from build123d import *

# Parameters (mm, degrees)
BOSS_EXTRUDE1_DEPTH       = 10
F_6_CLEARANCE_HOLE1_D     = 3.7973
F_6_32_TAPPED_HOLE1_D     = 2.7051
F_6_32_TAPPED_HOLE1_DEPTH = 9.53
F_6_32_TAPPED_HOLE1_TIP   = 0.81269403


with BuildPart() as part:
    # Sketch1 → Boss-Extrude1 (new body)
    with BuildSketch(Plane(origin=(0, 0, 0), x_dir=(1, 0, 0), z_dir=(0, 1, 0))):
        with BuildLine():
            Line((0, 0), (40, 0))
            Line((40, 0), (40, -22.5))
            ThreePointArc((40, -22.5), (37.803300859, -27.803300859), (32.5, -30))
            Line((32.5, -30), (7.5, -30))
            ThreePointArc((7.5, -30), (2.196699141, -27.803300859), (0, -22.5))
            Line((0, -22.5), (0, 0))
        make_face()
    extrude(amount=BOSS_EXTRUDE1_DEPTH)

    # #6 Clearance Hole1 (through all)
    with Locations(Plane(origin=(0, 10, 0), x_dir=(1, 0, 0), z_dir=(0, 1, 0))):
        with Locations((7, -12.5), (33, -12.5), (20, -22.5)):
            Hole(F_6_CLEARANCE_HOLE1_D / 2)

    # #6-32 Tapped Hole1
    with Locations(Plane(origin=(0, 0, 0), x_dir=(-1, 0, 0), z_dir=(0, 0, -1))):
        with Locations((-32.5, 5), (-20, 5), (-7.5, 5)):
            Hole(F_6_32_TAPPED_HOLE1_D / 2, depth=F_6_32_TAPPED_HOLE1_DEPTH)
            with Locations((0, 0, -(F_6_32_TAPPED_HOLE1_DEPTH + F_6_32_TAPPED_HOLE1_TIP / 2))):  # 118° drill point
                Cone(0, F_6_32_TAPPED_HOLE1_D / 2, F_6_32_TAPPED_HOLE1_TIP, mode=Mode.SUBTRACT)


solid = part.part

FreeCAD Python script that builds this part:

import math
import FreeCAD as App
import Part
import Sketcher
from FreeCAD import Vector
Q = App.Units.Quantity

doc = App.newDocument("Part")
body = doc.addObject("PartDesign::Body", "Body")

# Sketch on XZ plane
sketch1 = doc.addObject("Sketcher::SketchObject", "Sketch")
body.addObject(sketch1)
sketch1.AttachmentSupport = (doc.XZ_Plane, [""])
sketch1.MapMode = "FlatFace"
sketch1.addGeometry([
    Part.LineSegment(Vector(40, 0, 0), Vector(0, 0, 0)),  # 0
    Part.LineSegment(Vector(0, 0, 0), Vector(0, 22, 0)),  # 1
    Part.ArcOfCircle(Part.Circle(Vector(8, 22, 0), Vector(0, 0, 1), 8), math.radians(90), math.radians(180)),  # 2
    Part.LineSegment(Vector(8, 30, 0), Vector(32, 30, 0)),  # 3
    Part.ArcOfCircle(Part.Circle(Vector(32, 22, 0), Vector(0, 0, 1), 8), math.radians(0), math.radians(90)),  # 4
    Part.LineSegment(Vector(40, 22, 0), Vector(40, 0, 0)),  # 5
], False)
sketch1.addConstraint([
    Sketcher.Constraint("Coincident", 0, 2, 1, 1),
    Sketcher.Constraint("Tangent", 1, 2, 2, 2),
    Sketcher.Constraint("Tangent", 2, 1, 3, 1),
    Sketcher.Constraint("Tangent", 3, 2, 4, 2),
    Sketcher.Constraint("Tangent", 4, 1, 5, 1),
    Sketcher.Constraint("Coincident", 5, 2, 0, 1),
    Sketcher.Constraint("Horizontal", 0),
    Sketcher.Constraint("Vertical", 1),
    Sketcher.Constraint("Horizontal", 3),
    Sketcher.Constraint("Vertical", 5),
    Sketcher.Constraint("Coincident", 0, 2, -1, 1),
    Sketcher.Constraint("Equal", 2, 4),
    Sketcher.Constraint("Radius", 2, Q("7.5 mm")),
    Sketcher.Constraint("DistanceX", 0, 2, 0, 1, Q("40 mm")),
    Sketcher.Constraint("DistanceY", 1, 1, 1, 2, Q("22.5 mm")),
])
pad1 = doc.addObject("PartDesign::Pad", "Pad")
body.addObject(pad1)
pad1.Profile = sketch1
pad1.Length = 10
pad1.Reversed = True

# Sketch on XZ plane
sketch2 = doc.addObject("Sketcher::SketchObject", "Sketch001")
body.addObject(sketch2)
sketch2.AttachmentSupport = (doc.XZ_Plane, [""])
sketch2.MapMode = "FlatFace"
sketch2.AttachmentOffset = App.Placement(Vector(0, 0, -10), App.Rotation())
sketch2.addGeometry([
    Part.Circle(Vector(7, 12.5, 0), Vector(0, 0, 1), 1.9),
    Part.Circle(Vector(33, 12.5, 0), Vector(0, 0, 1), 1.9),
    Part.Circle(Vector(20, 22.5, 0), Vector(0, 0, 1), 1.9),
], False)
sketch2.addConstraint([
    Sketcher.Constraint("Equal", 0, 1),
    Sketcher.Constraint("Equal", 1, 2),
    Sketcher.Constraint("Horizontal", 0, 3, 1, 3),
    Sketcher.Constraint("DistanceX", -1, 1, 0, 3, Q("7 mm")),
    Sketcher.Constraint("DistanceX", -1, 1, 1, 3, Q("33 mm")),
    Sketcher.Constraint("DistanceX", -1, 1, 2, 3, Q("20 mm")),
    Sketcher.Constraint("DistanceY", 0, 3, 2, 3, Q("10 mm")),
    Sketcher.Constraint("Diameter", 0, Q("3.7973 mm")),
    Sketcher.Constraint("DistanceY", -1, 1, 0, 3, Q("12.5 mm")),
])
doc.recompute()
hole = doc.addObject("PartDesign::Hole", "Hole")
body.addObject(hole)
hole.Profile = sketch2
hole.ThreadType = "None"
hole.Diameter = 3.7973
hole.DepthType = "ThroughAll"
hole.Reversed = True

# Sketch on XY plane
sketch3 = doc.addObject("Sketcher::SketchObject", "Sketch002")
body.addObject(sketch3)
sketch3.AttachmentSupport = (doc.XY_Plane, [""])
sketch3.MapMode = "FlatFace"
sketch3.addGeometry([
    Part.Circle(Vector(32.5, 5, 0), Vector(0, 0, 1), 1.4),
    Part.Circle(Vector(20, 5, 0), Vector(0, 0, 1), 1.4),
    Part.Circle(Vector(7.5, 5, 0), Vector(0, 0, 1), 1.4),
], False)
sketch3.addConstraint([
    Sketcher.Constraint("Equal", 0, 1),
    Sketcher.Constraint("Equal", 1, 2),
    Sketcher.Constraint("Horizontal", 0, 3, 1, 3),
    Sketcher.Constraint("Horizontal", 1, 3, 2, 3),
    Sketcher.Constraint("DistanceY", -1, 1, 0, 3, Q("5 mm")),
    Sketcher.Constraint("DistanceX", -1, 1, 1, 3, Q("20 mm")),
    Sketcher.Constraint("DistanceX", 2, 3, 0, 3, Q("25 mm")),
    Sketcher.Constraint("Diameter", 0, Q("2.7051 mm")),
    Sketcher.Constraint("DistanceX", -1, 1, 0, 3, Q("32.5 mm")),
])
doc.recompute()
hole2 = doc.addObject("PartDesign::Hole", "Hole001")
body.addObject(hole2)
hole2.Profile = sketch3
hole2.ThreadType = "None"
hole2.Diameter = 2.7051
hole2.DepthType = "Dimension"
hole2.Depth = 9.53
hole2.DrillPoint = "Angled"
hole2.DrillPointAngle = 118
hole2.Reversed = True

doc.recompute()
